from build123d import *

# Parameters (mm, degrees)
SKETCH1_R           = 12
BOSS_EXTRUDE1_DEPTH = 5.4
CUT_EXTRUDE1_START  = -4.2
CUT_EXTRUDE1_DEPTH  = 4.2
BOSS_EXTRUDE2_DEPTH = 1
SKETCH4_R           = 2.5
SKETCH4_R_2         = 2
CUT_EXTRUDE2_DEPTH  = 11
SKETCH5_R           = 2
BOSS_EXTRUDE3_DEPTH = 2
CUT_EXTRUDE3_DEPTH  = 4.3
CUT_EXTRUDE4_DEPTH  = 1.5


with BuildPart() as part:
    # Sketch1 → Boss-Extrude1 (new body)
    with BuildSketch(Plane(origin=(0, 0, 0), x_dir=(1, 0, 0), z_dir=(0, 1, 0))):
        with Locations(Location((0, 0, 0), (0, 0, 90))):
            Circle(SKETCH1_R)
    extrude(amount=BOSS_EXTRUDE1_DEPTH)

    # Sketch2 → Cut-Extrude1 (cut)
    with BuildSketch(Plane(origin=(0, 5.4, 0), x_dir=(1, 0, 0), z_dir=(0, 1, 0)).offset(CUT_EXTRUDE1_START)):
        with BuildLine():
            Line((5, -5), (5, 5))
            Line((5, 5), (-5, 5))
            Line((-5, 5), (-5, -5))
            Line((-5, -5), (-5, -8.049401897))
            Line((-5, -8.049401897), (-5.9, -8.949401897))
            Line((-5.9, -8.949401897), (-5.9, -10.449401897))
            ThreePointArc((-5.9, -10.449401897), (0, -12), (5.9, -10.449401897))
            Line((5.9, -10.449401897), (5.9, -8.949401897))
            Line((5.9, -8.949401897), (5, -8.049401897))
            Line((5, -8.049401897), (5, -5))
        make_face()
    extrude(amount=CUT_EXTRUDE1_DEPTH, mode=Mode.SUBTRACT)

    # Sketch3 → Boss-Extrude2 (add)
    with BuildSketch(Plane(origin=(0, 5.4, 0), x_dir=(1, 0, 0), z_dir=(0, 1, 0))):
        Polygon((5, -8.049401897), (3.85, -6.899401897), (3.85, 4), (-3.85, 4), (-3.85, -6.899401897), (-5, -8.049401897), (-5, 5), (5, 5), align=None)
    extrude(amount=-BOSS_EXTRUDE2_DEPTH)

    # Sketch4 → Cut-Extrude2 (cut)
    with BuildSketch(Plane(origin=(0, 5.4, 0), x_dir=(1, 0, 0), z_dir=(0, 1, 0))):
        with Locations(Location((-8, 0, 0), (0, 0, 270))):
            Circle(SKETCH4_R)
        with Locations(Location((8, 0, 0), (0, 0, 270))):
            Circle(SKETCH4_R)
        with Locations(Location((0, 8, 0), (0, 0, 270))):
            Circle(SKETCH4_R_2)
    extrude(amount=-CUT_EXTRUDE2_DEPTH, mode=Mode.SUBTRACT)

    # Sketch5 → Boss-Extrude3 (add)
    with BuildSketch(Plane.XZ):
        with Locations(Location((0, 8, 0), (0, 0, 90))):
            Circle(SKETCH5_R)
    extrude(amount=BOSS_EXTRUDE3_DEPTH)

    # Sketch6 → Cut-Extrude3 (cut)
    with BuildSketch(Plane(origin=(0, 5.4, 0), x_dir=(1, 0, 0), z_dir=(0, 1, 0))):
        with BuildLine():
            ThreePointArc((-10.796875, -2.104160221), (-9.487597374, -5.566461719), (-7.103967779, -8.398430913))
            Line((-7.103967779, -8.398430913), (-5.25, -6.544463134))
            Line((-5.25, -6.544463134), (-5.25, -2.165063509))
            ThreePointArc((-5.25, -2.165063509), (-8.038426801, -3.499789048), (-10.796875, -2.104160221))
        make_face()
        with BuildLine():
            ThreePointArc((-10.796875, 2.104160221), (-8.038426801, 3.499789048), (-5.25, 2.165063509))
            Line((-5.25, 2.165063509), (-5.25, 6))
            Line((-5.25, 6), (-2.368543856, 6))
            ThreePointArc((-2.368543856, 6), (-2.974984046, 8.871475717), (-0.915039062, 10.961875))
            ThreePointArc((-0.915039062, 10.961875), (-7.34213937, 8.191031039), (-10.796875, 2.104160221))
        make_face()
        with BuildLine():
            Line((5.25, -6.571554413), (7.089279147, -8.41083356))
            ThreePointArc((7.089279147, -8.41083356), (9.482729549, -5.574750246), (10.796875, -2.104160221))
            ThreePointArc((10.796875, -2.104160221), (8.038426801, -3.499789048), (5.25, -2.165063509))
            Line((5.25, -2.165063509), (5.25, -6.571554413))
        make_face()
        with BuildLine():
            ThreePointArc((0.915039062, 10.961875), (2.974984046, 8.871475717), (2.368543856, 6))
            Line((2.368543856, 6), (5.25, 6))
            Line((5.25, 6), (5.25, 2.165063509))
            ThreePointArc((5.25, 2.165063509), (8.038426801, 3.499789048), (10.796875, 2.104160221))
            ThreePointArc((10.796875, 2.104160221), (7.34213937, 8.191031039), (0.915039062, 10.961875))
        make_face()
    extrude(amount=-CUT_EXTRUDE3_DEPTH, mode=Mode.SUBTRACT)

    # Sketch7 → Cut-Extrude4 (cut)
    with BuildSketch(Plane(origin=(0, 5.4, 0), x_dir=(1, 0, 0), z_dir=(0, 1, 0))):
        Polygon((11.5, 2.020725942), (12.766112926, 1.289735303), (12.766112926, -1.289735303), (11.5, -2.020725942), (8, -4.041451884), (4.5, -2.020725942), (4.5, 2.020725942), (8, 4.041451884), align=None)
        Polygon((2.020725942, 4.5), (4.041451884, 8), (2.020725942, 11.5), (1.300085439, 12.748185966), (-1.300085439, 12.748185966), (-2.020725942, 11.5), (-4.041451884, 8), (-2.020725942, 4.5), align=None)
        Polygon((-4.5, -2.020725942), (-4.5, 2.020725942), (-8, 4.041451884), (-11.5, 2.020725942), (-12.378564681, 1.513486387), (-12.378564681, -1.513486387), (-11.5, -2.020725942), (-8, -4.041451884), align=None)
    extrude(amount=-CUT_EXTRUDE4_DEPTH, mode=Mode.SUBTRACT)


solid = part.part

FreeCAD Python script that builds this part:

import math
import FreeCAD as App
import Part
import Sketcher
Q = App.Units.Quantity

doc = App.newDocument("Part")
body = doc.addObject("PartDesign::Body", "Body")

# Sketch on XZ plane
sketch1 = doc.addObject("Sketcher::SketchObject", "Sketch")
body.addObject(sketch1)
sketch1.AttachmentSupport = (doc.XZ_Plane, [""])
sketch1.MapMode = "FlatFace"
sketch1.addGeometry(Part.Circle(App.Vector(0, 0, 0), App.Vector(0, 0, 1), 12), False)
sketch1.addConstraint([
    Sketcher.Constraint("Coincident", 0, 3, -1, 1),
    Sketcher.Constraint("Diameter", 0, 24.0),
])
pad1 = doc.addObject("PartDesign::Pad", "Pad")
body.addObject(pad1)
pad1.Profile = sketch1
pad1.Length = 5.4
pad1.Reversed = True

# Sketch on XZ plane
sketch2 = doc.addObject("Sketcher::SketchObject", "Sketch001")
body.addObject(sketch2)
sketch2.AttachmentSupport = (doc.XZ_Plane, [""])
sketch2.MapMode = "FlatFace"
sketch2.AttachmentOffset = App.Placement(App.Vector(0, 0, -1.2), App.Rotation())
sketch2.addGeometry([
    Part.LineSegment(App.Vector(5, -5, 0), App.Vector(-5, -5, 0)),  # 0
    Part.LineSegment(App.Vector(-5, -5, 0), App.Vector(-5, 8.049402, 0)),  # 1
    Part.LineSegment(App.Vector(-5, 8.049402, 0), App.Vector(-5.9, 8.949402, 0)),  # 2
    Part.LineSegment(App.Vector(-5.9, 8.949402, 0), App.Vector(-5.9, 10.449402, 0)),  # 3
    Part.ArcOfCircle(Part.Circle(App.Vector(0, 0, 0), App.Vector(0, 0, 1), 12), math.radians(60.549814), math.radians(119.450186)),  # 4
    Part.LineSegment(App.Vector(5.9, 10.449402, 0), App.Vector(5.9, 8.949402, 0)),  # 5
    Part.LineSegment(App.Vector(5.9, 8.949402, 0), App.Vector(5, 8.049402, 0)),  # 6
    Part.LineSegment(App.Vector(5, 8.049402, 0), App.Vector(5, -5, 0)),  # 7
], False)
sketch2.addConstraint([
    Sketcher.Constraint("Coincident", 0, 2, 1, 1),
    Sketcher.Constraint("Coincident", 1, 2, 2, 1),
    Sketcher.Constraint("Coincident", 2, 2, 3, 1),
    Sketcher.Constraint("Coincident", 3, 2, 4, 2),
    Sketcher.Constraint("Coincident", 4, 1, 5, 1),
    Sketcher.Constraint("Coincident", 5, 2, 6, 1),
    Sketcher.Constraint("Coincident", 6, 2, 7, 1),
    Sketcher.Constraint("Coincident", 7, 2, 0, 1),
    Sketcher.Constraint("Horizontal", 0),
    Sketcher.Constraint("Vertical", 1),
    Sketcher.Constraint("Vertical", 3),
    Sketcher.Constraint("Vertical", 5),
    Sketcher.Constraint("Vertical", 7),
    Sketcher.Constraint("Coincident", 4, 3, -1, 1),
    Sketcher.Constraint("Symmetric", 2, 2, 5, 2, -2),
    Sketcher.Constraint("Symmetric", 1, 2, 6, 2, -2),
    Sketcher.Constraint("Perpendicular", 2, 6),
    Sketcher.Constraint("Radius", 4, 12.0),
    Sketcher.Constraint("DistanceX", 0, 2, 0, 1, 10.0),
    Sketcher.Constraint("DistanceY", 3, 1, 3, 2, 1.5),
    Sketcher.Constraint("DistanceY", 0, 2, -1, 1, 5.0),
    Sketcher.Constraint("DistanceX", 2, 2, -1, 1, 5.9),
])
pocket1 = doc.addObject("PartDesign::Pocket", "Pocket")
body.addObject(pocket1)
pocket1.Profile = sketch2
pocket1.Length = 4.2

# Sketch on XZ plane
sketch3 = doc.addObject("Sketcher::SketchObject", "Sketch002")
body.addObject(sketch3)
sketch3.AttachmentSupport = (doc.XZ_Plane, [""])
sketch3.MapMode = "FlatFace"
sketch3.AttachmentOffset = App.Placement(App.Vector(0, 0, -5.4), App.Rotation())
sketch3.addGeometry([
    Part.LineSegment(App.Vector(3.85, 6.899402, 0), App.Vector(5, 8.049402, 0)),  # 0
    Part.LineSegment(App.Vector(5, 8.049402, 0), App.Vector(5, -5, 0)),  # 1
    Part.LineSegment(App.Vector(5, -5, 0), App.Vector(-5, -5, 0)),  # 2
    Part.LineSegment(App.Vector(-5, -5, 0), App.Vector(-5, 8.049402, 0)),  # 3
    Part.LineSegment(App.Vector(-5, 8.049402, 0), App.Vector(-3.85, 6.899402, 0)),  # 4
    Part.LineSegment(App.Vector(-3.85, 6.899402, 0), App.Vector(-3.85, -4, 0)),  # 5
    Part.LineSegment(App.Vector(-3.85, -4, 0), App.Vector(3.85, -4, 0)),  # 6
    Part.LineSegment(App.Vector(3.85, -4, 0), App.Vector(3.85, 6.899402, 0)),  # 7
], False)
sketch3.addConstraint([
    Sketcher.Constraint("Coincident", 0, 2, 1, 1),
    Sketcher.Constraint("Coincident", 1, 2, 2, 1),
    Sketcher.Constraint("Coincident", 2, 2, 3, 1),
    Sketcher.Constraint("Coincident", 3, 2, 4, 1),
    Sketcher.Constraint("Coincident", 4, 2, 5, 1),
    Sketcher.Constraint("Coincident", 5, 2, 6, 1),
    Sketcher.Constraint("Coincident", 6, 2, 7, 1),
    Sketcher.Constraint("Coincident", 7, 2, 0, 1),
    Sketcher.Constraint("Vertical", 1),
    Sketcher.Constraint("Horizontal", 2),
    Sketcher.Constraint("Vertical", 3),
    Sketcher.Constraint("Vertical", 5),
    Sketcher.Constraint("Horizontal", 6),
    Sketcher.Constraint("Vertical", 7),
    Sketcher.Constraint("Symmetric", 0, 2, 3, 2, -2),
    Sketcher.Constraint("Symmetric", 4, 2, 7, 2, -2),
    Sketcher.Constraint("Perpendicular", 0, 4),
    Sketcher.Constraint("DistanceX", 2, 2, 2, 1, 10.0),
    Sketcher.Constraint("DistanceX", 6, 1, 6, 2, 7.7),
    Sketcher.Constraint("DistanceY", 1, 2, -1, 1, 5.0),
    Sketcher.Constraint("DistanceY", 5, 2, -1, 1, 4.0),
    Sketcher.Constraint("DistanceY", 1, 2, 1, 1, 13.049402),
])
pad2 = doc.addObject("PartDesign::Pad", "Pad001")
body.addObject(pad2)
pad2.Profile = sketch3
pad2.Length = 1

# Sketch on XZ plane
sketch4 = doc.addObject("Sketcher::SketchObject", "Sketch003")
body.addObject(sketch4)
sketch4.AttachmentSupport = (doc.XZ_Plane, [""])
sketch4.MapMode = "FlatFace"
sketch4.AttachmentOffset = App.Placement(App.Vector(0, 0, -5.4), App.Rotation())
sketch4.addGeometry([
    Part.Circle(App.Vector(-8, 0, 0), App.Vector(0, 0, 1), 2.5),
    Part.Circle(App.Vector(8, 0, 0), App.Vector(0, 0, 1), 2.5),
    Part.Circle(App.Vector(0, -8, 0), App.Vector(0, 0, 1), 2),
], False)
sketch4.addConstraint([
    Sketcher.Constraint("Equal", 0, 1),
    Sketcher.Constraint("Symmetric", 0, 3, 1, 3, -1, 1),
    Sketcher.Constraint("PointOnObject", 0, 3, -1),
    Sketcher.Constraint("PointOnObject", 2, 3, -2),
    Sketcher.Constraint("Diameter", 0, 5.0),
    Sketcher.Constraint("Diameter", 2, 4.0),
    Sketcher.Constraint("DistanceX", 0, 3, -1, 1, 8.0),
    Sketcher.Constraint("DistanceY", 2, 3, -1, 1, 8.0),
])
pocket2 = doc.addObject("PartDesign::Pocket", "Pocket001")
body.addObject(pocket2)
pocket2.Profile = sketch4
pocket2.Length = 11
pocket2.Reversed = True

# Sketch on XZ plane
sketch5 = doc.addObject("Sketcher::SketchObject", "Sketch004")
body.addObject(sketch5)
sketch5.AttachmentSupport = (doc.XZ_Plane, [""])
sketch5.MapMode = "FlatFace"
sketch5.addGeometry(Part.Circle(App.Vector(0, 8, 0), App.Vector(0, 0, 1), 2), False)
sketch5.addConstraint([
    Sketcher.Constraint("PointOnObject", 0, 3, -2),
    Sketcher.Constraint("Diameter", 0, 4.0),
    Sketcher.Constraint("DistanceY", -1, 1, 0, 3, 8.0),
])
pad3 = doc.addObject("PartDesign::Pad", "Pad002")
body.addObject(pad3)
pad3.Profile = sketch5
pad3.Length = 2

# Sketch on XZ plane
sketch6 = doc.addObject("Sketcher::SketchObject", "Sketch005")
body.addObject(sketch6)
sketch6.AttachmentSupport = (doc.XZ_Plane, [""])
sketch6.MapMode = "FlatFace"
sketch6.AttachmentOffset = App.Placement(App.Vector(0, 0, -5.4), App.Rotation())
sketch6.addGeometry([
    Part.ArcOfCircle(Part.Circle(App.Vector(0, 0, 0), App.Vector(0, 0, 1), 11), math.radians(130.226828), math.radians(168.972081)),  # 0
    Part.LineSegment(App.Vector(-7.103968, 8.398431, 0), App.Vector(-5.25, 6.544463, 0)),  # 1
    Part.LineSegment(App.Vector(-5.25, 6.544463, 0), App.Vector(-5.25, 2.165064, 0)),  # 2
    Part.ArcOfCircle(Part.Circle(App.Vector(-8, 0, 0), App.Vector(0, 0, 1), 3.5), math.radians(38.213211), math.radians(143.044925)),  # 3
    Part.ArcOfCircle(Part.Circle(App.Vector(-8, 0, 0), App.Vector(0, 0, 1), 3.5), math.radians(-143.044925), math.radians(-38.213211)),  # 4
    Part.LineSegment(App.Vector(-5.25, -2.165064, 0), App.Vector(-5.25, -6, 0)),  # 5
    Part.LineSegment(App.Vector(-5.25, -6, 0), App.Vector(-2.368544, -6, 0)),  # 6
    Part.ArcOfCircle(Part.Circle(App.Vector(0, -8, 0), App.Vector(0, 0, 1), 3.1), math.radians(139.82223), math.radians(252.832035)),  # 7
    Part.ArcOfCircle(Part.Circle(App.Vector(0, 0, 0), App.Vector(0, 0, 1), 11), math.radians(-168.972081), math.radians(-94.771685)),  # 8
    Part.LineSegment(App.Vector(5.25, 6.571554, 0), App.Vector(7.089279, 8.410834, 0)),  # 9
    Part.ArcOfCircle(Part.Circle(App.Vector(0, 0, 0), App.Vector(0, 0, 1), 11), math.radians(11.027919), math.radians(49.873307)),  # 10
    Part.ArcOfCircle(Part.Circle(App.Vector(8, 0, 0), App.Vector(0, 0, 1), 3.5), math.radians(36.955075), math.radians(141.786789)),  # 11
    Part.LineSegment(App.Vector(5.25, 2.165064, 0), App.Vector(5.25, 6.571554, 0)),  # 12
    Part.ArcOfCircle(Part.Circle(App.Vector(0, -8, 0), App.Vector(0, 0, 1), 3.1), math.radians(-72.832035), math.radians(40.17777)),  # 13
    Part.LineSegment(App.Vector(2.368544, -6, 0), App.Vector(5.25, -6, 0)),  # 14
    Part.LineSegment(App.Vector(5.25, -6, 0), App.Vector(5.25, -2.165064, 0)),  # 15
    Part.ArcOfCircle(Part.Circle(App.Vector(8, 0, 0), App.Vector(0, 0, 1), 3.5), math.radians(-141.786789), math.radians(-36.955075)),  # 16
    Part.ArcOfCircle(Part.Circle(App.Vector(0, 0, 0), App.Vector(0, 0, 1), 11), math.radians(-85.228315), math.radians(-11.027919)),  # 17
], False)
sketch6.addConstraint([
    Sketcher.Constraint("Coincident", 0, 1, 1, 1),
    Sketcher.Constraint("Coincident", 1, 2, 2, 1),
    Sketcher.Constraint("Coincident", 2, 2, 3, 1),
    Sketcher.Constraint("Coincident", 3, 2, 0, 2),
    Sketcher.Constraint("Coincident", 4, 2, 5, 1),
    Sketcher.Constraint("Coincident", 5, 2, 6, 1),
    Sketcher.Constraint("Coincident", 6, 2, 7, 1),
    Sketcher.Constraint("Coincident", 7, 2, 8, 2),
    Sketcher.Constraint("Coincident", 8, 1, 4, 1),
    Sketcher.Constraint("Coincident", 9, 2, 10, 2),
    Sketcher.Constraint("Coincident", 10, 1, 11, 1),
    Sketcher.Constraint("Coincident", 11, 2, 12, 1),
    Sketcher.Constraint("Coincident", 12, 2, 9, 1),
    Sketcher.Constraint("Coincident", 13, 2, 14, 1),
    Sketcher.Constraint("Coincident", 14, 2, 15, 1),
    Sketcher.Constraint("Coincident", 15, 2, 16, 1),
    Sketcher.Constraint("Coincident", 16, 2, 17, 2),
    Sketcher.Constraint("Coincident", 17, 1, 13, 1),
    Sketcher.Constraint("Vertical", 2),
    Sketcher.Constraint("Vertical", 5),
    Sketcher.Constraint("Horizontal", 6),
    Sketcher.Constraint("Vertical", 12),
    Sketcher.Constraint("Horizontal", 14),
    Sketcher.Constraint("Vertical", 15),
    Sketcher.Constraint("Coincident", 0, 3, -1, 1),
    Sketcher.Constraint("Coincident", 8, 3, -1, 1),
    Sketcher.Constraint("Coincident", 10, 3, -1, 1),
    Sketcher.Constraint("Coincident", 17, 3, -1, 1),
    Sketcher.Constraint("Coincident", 4, 3, 3, 3),
    Sketcher.Constraint("Coincident", 13, 3, 7, 3),
    Sketcher.Constraint("Coincident", 16, 3, 11, 3),
    Sketcher.Constraint("Equal", 3, 4),
    Sketcher.Constraint("Equal", 0, 8),
    Sketcher.Constraint("Equal", 8, 10),
    Sketcher.Constraint("Equal", 4, 11),
    Sketcher.Constraint("Equal", 7, 13),
    Sketcher.Constraint("Equal", 11, 16),
    Sketcher.Constraint("Equal", 10, 17),
    Sketcher.Constraint("Symmetric", 3, 3, 11, 3, -1, 1),
    Sketcher.Constraint("Symmetric", 2, 2, 11, 2, -2),
    Sketcher.Constraint("Symmetric", 6, 2, 13, 2, -2),
    Sketcher.Constraint("Perpendicular", 1, 9),
    Sketcher.Constraint("Horizontal", 4, 2, 15, 2),
    Sketcher.Constraint("Vertical", 2, 2, 4, 2),
    Sketcher.Constraint("Radius", 0, 11.0),
    Sketcher.Constraint("Radius", 3, 3.5),
    Sketcher.Constraint("Radius", 7, 3.1),
    Sketcher.Constraint("Angle", 1, Q("-45 deg")),
    Sketcher.Constraint("DistanceX", 3, 3, -1, 1, 8.0),
    Sketcher.Constraint("DistanceY", 7, 3, -1, 1, 8.0),
    Sketcher.Constraint("DistanceY", 5, 2, -1, 1, 6.0),
    Sketcher.Constraint("DistanceX", 1, 2, -1, 1, 5.25),
    Sketcher.Constraint("DistanceY", 2, 2, 2, 1, 4.3794),
    Sketcher.Constraint("DistanceY", 12, 1, 12, 2, 4.406491),
])
pocket3 = doc.addObject("PartDesign::Pocket", "Pocket002")
body.addObject(pocket3)
pocket3.Profile = sketch6
pocket3.Length = 4.3
pocket3.Reversed = True

# Sketch on XZ plane
sketch7 = doc.addObject("Sketcher::SketchObject", "Sketch006")
body.addObject(sketch7)
sketch7.AttachmentSupport = (doc.XZ_Plane, [""])
sketch7.MapMode = "FlatFace"
sketch7.AttachmentOffset = App.Placement(App.Vector(0, 0, -5.4), App.Rotation())
sketch7.addGeometry([
    Part.LineSegment(App.Vector(12.766113, -1.289735, 0), App.Vector(11.5, -2.020726, 0)),  # 0
    Part.LineSegment(App.Vector(11.5, -2.020726, 0), App.Vector(8, -4.041452, 0)),  # 1
    Part.LineSegment(App.Vector(8, -4.041452, 0), App.Vector(4.5, -2.020726, 0)),  # 2
    Part.LineSegment(App.Vector(4.5, -2.020726, 0), App.Vector(4.5, 2.020726, 0)),  # 3
    Part.LineSegment(App.Vector(4.5, 2.020726, 0), App.Vector(8, 4.041452, 0)),  # 4
    Part.LineSegment(App.Vector(8, 4.041452, 0), App.Vector(11.5, 2.020726, 0)),  # 5
    Part.LineSegment(App.Vector(11.5, 2.020726, 0), App.Vector(12.766113, 1.289735, 0)),  # 6
    Part.LineSegment(App.Vector(12.766113, 1.289735, 0), App.Vector(12.766113, -1.289735, 0)),  # 7
    Part.LineSegment(App.Vector(2.020726, -4.5, 0), App.Vector(4.041452, -8, 0)),  # 8
    Part.LineSegment(App.Vector(4.041452, -8, 0), App.Vector(2.020726, -11.5, 0)),  # 9
    Part.LineSegment(App.Vector(2.020726, -11.5, 0), App.Vector(1.300085, -12.748186, 0)),  # 10
    Part.LineSegment(App.Vector(1.300085, -12.748186, 0), App.Vector(-1.300085, -12.748186, 0)),  # 11
    Part.LineSegment(App.Vector(-1.300085, -12.748186, 0), App.Vector(-2.020726, -11.5, 0)),  # 12
    Part.LineSegment(App.Vector(-2.020726, -11.5, 0), App.Vector(-4.041452, -8, 0)),  # 13
    Part.LineSegment(App.Vector(-4.041452, -8, 0), App.Vector(-2.020726, -4.5, 0)),  # 14
    Part.LineSegment(App.Vector(-2.020726, -4.5, 0), App.Vector(2.020726, -4.5, 0)),  # 15
    Part.LineSegment(App.Vector(-4.5, 2.020726, 0), App.Vector(-4.5, -2.020726, 0)),  # 16
    Part.LineSegment(App.Vector(-4.5, -2.020726, 0), App.Vector(-8, -4.041452, 0)),  # 17
    Part.LineSegment(App.Vector(-8, -4.041452, 0), App.Vector(-11.5, -2.020726, 0)),  # 18
    Part.LineSegment(App.Vector(-11.5, -2.020726, 0), App.Vector(-12.378565, -1.513486, 0)),  # 19
    Part.LineSegment(App.Vector(-12.378565, -1.513486, 0), App.Vector(-12.378565, 1.513486, 0)),  # 20
    Part.LineSegment(App.Vector(-12.378565, 1.513486, 0), App.Vector(-11.5, 2.020726, 0)),  # 21
    Part.LineSegment(App.Vector(-11.5, 2.020726, 0), App.Vector(-8, 4.041452, 0)),  # 22
    Part.LineSegment(App.Vector(-8, 4.041452, 0), App.Vector(-4.5, 2.020726, 0)),  # 23
], False)
sketch7.addConstraint([
    Sketcher.Constraint("Coincident", 0, 2, 1, 1),
    Sketcher.Constraint("Coincident", 1, 2, 2, 1),
    Sketcher.Constraint("Coincident", 2, 2, 3, 1),
    Sketcher.Constraint("Coincident", 3, 2, 4, 1),
    Sketcher.Constraint("Coincident", 4, 2, 5, 1),
    Sketcher.Constraint("Coincident", 5, 2, 6, 1),
    Sketcher.Constraint("Coincident", 6, 2, 7, 1),
    Sketcher.Constraint("Coincident", 7, 2, 0, 1),
    Sketcher.Constraint("Coincident", 8, 2, 9, 1),
    Sketcher.Constraint("Coincident", 9, 2, 10, 1),
    Sketcher.Constraint("Coincident", 10, 2, 11, 1),
    Sketcher.Constraint("Coincident", 11, 2, 12, 1),
    Sketcher.Constraint("Coincident", 12, 2, 13, 1),
    Sketcher.Constraint("Coincident", 13, 2, 14, 1),
    Sketcher.Constraint("Coincident", 14, 2, 15, 1),
    Sketcher.Constraint("Coincident", 15, 2, 8, 1),
    Sketcher.Constraint("Coincident", 16, 2, 17, 1),
    Sketcher.Constraint("Coincident", 17, 2, 18, 1),
    Sketcher.Constraint("Coincident", 18, 2, 19, 1),
    Sketcher.Constraint("Coincident", 19, 2, 20, 1),
    Sketcher.Constraint("Coincident", 20, 2, 21, 1),
    Sketcher.Constraint("Coincident", 21, 2, 22, 1),
    Sketcher.Constraint("Coincident", 22, 2, 23, 1),
    Sketcher.Constraint("Coincident", 23, 2, 16, 1),
    Sketcher.Constraint("Vertical", 3),
    Sketcher.Constraint("Vertical", 7),
    Sketcher.Constraint("Horizontal", 11),
    Sketcher.Constraint("Horizontal", 15),
    Sketcher.Constraint("Vertical", 16),
    Sketcher.Constraint("Vertical", 20),
    Sketcher.Constraint("Symmetric", 3, 2, 16, 2, -1, 1),
    Sketcher.Constraint("Symmetric", 4, 2, 17, 2, -1, 1),
    Sketcher.Constraint("Symmetric", 5, 2, 18, 2, -1, 1),
    Sketcher.Constraint("Symmetric", 0, 2, 21, 2, -1, 1),
    Sketcher.Constraint("Symmetric", 1, 2, 22, 2, -1, 1),
    Sketcher.Constraint("Symmetric", 9, 2, 12, 2, -2),
    Sketcher.Constraint("Symmetric", 8, 2, 13, 2, -2),
    Sketcher.Constraint("Symmetric", 1, 2, 17, 2, -2),
    Sketcher.Constraint("Symmetric", 0, 2, 18, 2, -2),
    Sketcher.Constraint("Parallel", 0, 1),
    Sketcher.Constraint("Parallel", 1, 4),
    Sketcher.Constraint("Parallel", 2, 5),
    Sketcher.Constraint("Parallel", 5, 6),
    Sketcher.Constraint("Perpendicular", 4, 8),
    Sketcher.Constraint("Perpendicular", 6, 9),
    Sketcher.Constraint("Parallel", 9, 10),
    Sketcher.Constraint("Parallel", 8, 12),
    Sketcher.Constraint("Parallel", 10, 14),
    Sketcher.Constraint("Parallel", 18, 19),
    Sketcher.Constraint("Parallel", 17, 21),
    Sketcher.Constraint("Parallel", 19, 23),
    Sketcher.Constraint("Horizontal", 0, 2, 2, 2),
    Sketcher.Constraint("Vertical", 12, 2, 14, 2),
    Sketcher.Constraint("Equal", 15, 3),
    Sketcher.Constraint("Equal", 5, 8),
    Sketcher.Constraint("Angle", 0, Q("-150 deg")),
    Sketcher.Constraint("DistanceX", -1, 1, 1, 2, 8.0),
    Sketcher.Constraint("DistanceY", 8, 2, -1, 1, 8.0),
    Sketcher.Constraint("DistanceX", 2, 2, 0, 2, 7.0),
    Sketcher.Constraint("DistanceX", 11, 2, 11, 1, 2.600171),
    Sketcher.Constraint("DistanceX", 15, 1, 15, 2, 4.041452),
    Sketcher.Constraint("DistanceY", 7, 2, 7, 1, 2.579471),
    Sketcher.Constraint("Distance", 19, 1.014479),
])
pocket4 = doc.addObject("PartDesign::Pocket", "Pocket003")
body.addObject(pocket4)
pocket4.Profile = sketch7
pocket4.Length = 1.5
pocket4.Reversed = True

doc.recompute()
